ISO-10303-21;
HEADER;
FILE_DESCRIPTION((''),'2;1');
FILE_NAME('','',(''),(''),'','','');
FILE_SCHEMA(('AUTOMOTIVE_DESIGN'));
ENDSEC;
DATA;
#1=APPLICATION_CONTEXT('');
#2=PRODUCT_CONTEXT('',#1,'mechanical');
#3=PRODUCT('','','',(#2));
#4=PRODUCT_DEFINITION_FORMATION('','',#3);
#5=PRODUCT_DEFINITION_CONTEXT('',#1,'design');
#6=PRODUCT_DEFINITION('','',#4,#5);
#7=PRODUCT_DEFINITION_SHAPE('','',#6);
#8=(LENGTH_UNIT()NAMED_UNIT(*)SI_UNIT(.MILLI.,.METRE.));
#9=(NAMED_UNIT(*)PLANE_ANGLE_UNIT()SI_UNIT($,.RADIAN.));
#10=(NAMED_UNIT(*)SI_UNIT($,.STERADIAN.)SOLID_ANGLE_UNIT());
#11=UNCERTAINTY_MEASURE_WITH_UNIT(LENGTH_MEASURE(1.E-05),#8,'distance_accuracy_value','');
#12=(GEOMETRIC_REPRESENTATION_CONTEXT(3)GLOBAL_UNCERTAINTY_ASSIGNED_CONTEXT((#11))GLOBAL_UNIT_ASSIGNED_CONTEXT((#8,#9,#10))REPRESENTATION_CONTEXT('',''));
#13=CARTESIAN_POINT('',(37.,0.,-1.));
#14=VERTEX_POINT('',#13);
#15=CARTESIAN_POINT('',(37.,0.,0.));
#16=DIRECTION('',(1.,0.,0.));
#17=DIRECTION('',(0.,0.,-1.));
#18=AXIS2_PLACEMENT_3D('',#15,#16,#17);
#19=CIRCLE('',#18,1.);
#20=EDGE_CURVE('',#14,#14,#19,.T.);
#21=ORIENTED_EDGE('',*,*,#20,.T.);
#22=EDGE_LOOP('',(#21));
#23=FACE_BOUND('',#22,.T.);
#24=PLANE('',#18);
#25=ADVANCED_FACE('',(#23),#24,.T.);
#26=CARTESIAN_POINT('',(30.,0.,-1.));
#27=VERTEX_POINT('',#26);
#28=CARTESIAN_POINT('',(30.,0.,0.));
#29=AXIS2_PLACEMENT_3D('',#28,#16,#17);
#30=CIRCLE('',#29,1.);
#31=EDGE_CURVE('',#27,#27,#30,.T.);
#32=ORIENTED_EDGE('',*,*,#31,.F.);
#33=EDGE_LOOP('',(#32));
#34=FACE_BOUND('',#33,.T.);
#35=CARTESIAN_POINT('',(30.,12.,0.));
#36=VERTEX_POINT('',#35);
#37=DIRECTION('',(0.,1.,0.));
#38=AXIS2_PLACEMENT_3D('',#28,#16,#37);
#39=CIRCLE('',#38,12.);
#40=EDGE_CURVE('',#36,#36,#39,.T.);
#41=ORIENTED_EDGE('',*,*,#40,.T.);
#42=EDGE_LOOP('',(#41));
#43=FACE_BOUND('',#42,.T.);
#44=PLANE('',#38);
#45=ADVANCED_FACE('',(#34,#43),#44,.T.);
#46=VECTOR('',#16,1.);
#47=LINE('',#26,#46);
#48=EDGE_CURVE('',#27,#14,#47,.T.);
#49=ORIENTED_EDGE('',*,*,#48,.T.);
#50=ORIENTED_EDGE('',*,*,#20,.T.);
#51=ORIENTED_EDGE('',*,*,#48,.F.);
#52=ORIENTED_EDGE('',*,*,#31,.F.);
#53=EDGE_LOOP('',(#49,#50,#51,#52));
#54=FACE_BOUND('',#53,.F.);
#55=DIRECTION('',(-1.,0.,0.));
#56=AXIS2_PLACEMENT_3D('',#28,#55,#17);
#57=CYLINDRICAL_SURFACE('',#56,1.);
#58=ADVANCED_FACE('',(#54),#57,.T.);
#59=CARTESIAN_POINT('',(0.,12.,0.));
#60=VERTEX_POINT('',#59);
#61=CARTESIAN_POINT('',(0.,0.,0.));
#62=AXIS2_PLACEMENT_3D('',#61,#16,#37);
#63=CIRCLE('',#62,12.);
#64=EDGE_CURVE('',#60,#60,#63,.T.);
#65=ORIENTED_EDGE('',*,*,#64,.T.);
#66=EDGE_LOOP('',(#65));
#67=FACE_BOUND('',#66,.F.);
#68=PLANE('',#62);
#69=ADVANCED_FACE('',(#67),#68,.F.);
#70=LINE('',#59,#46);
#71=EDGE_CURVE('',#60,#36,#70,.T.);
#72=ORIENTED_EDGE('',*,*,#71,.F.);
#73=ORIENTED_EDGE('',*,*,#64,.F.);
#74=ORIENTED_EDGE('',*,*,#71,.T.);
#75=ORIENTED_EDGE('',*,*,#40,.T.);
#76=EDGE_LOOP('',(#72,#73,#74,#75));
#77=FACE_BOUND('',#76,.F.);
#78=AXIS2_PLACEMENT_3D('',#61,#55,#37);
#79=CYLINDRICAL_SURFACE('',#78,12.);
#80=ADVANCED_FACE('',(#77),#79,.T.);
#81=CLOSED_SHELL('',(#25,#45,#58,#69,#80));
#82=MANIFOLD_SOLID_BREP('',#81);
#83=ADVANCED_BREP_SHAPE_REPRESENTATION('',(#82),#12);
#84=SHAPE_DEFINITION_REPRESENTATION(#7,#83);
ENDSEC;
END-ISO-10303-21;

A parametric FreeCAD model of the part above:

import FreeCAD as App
import Part
import Sketcher
from FreeCAD import Vector
Q = App.Units.Quantity

doc = App.newDocument("Part")
body = doc.addObject("PartDesign::Body", "Body")

sketch1 = body.newObject("Sketcher::SketchObject", "Sketch")
sketch1.AttachmentSupport = (doc.getObject("YZ_Plane"), [""])
sketch1.MapMode = "FlatFace"
sketch1.addGeometry(Part.Circle(Vector(0, 0, 0), Vector(0, 0, 1), 12), False)
sketch1.addConstraint([
    Sketcher.Constraint("Coincident", 0, 3, -1, 1),
    Sketcher.Constraint("Diameter", 0, Q("24 mm")),
])
pad1 = body.newObject("PartDesign::Pad", "Pad")
pad1.Profile = sketch1
pad1.Length = 30

sketch2 = body.newObject("Sketcher::SketchObject", "Sketch001")
sketch2.AttachmentSupport = (doc.getObject("YZ_Plane"), [""])
sketch2.MapMode = "FlatFace"
sketch2.AttachmentOffset = App.Placement(Vector(0, 0, 30), App.Rotation())
sketch2.addGeometry(Part.Circle(Vector(0, 0, 0), Vector(0, 0, 1), 1), False)
sketch2.addConstraint([
    Sketcher.Constraint("Coincident", 0, 3, -1, 1),
    Sketcher.Constraint("Diameter", 0, Q("2 mm")),
])
pad2 = body.newObject("PartDesign::Pad", "Pad001")
pad2.Profile = sketch2
pad2.Length = 7

doc.recompute()
